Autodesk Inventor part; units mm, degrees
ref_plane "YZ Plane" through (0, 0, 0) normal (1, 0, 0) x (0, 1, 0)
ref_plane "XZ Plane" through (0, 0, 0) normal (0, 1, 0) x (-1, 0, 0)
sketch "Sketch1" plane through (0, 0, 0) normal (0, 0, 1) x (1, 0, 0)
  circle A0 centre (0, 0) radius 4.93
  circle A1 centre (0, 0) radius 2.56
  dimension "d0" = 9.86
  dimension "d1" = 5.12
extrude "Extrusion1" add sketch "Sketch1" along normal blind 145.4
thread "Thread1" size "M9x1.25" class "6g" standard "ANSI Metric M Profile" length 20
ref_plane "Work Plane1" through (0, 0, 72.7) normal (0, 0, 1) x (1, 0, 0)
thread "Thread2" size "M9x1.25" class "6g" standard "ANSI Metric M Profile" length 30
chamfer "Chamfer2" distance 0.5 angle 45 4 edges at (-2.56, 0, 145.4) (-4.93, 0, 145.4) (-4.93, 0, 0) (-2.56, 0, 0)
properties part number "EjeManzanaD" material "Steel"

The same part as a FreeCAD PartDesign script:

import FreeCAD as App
import Part
import Sketcher


def edges_at(feature, points):
    """Names of the edges that pass closest to the given points."""
    edges = feature.Shape.Edges
    near = lambda p: min(range(len(edges)), key=lambda i: edges[i].distToShape(Part.Vertex(*p))[0])
    return sorted({f"Edge{near(p) + 1}" for p in points})

doc = App.newDocument("Part")
body = doc.addObject("PartDesign::Body", "Body")

sketch1 = body.newObject("Sketcher::SketchObject", "Sketch")
sketch1.AttachmentSupport = (doc.getObject("XY_Plane"), [""])
sketch1.MapMode = "FlatFace"
sketch1.addGeometry(Part.Circle(App.Vector(0, 0, 0), App.Vector(0, 0, 1), 4.93), False)
sketch1.addGeometry(Part.Circle(App.Vector(0, 0, 0), App.Vector(0, 0, 1), 2.56), False)
sketch1.addConstraint(Sketcher.Constraint("Coincident", 0, 3, -1, 1))
sketch1.addConstraint(Sketcher.Constraint("Coincident", 1, 3, -1, 1))
sketch1.addConstraint(Sketcher.Constraint("Diameter", 0, 9.86))
sketch1.addConstraint(Sketcher.Constraint("Diameter", 1, 5.12))
pad1 = body.newObject("PartDesign::Pad", "Pad")
pad1.Profile = sketch1
pad1.Length = 145.4
doc.recompute()

chamfer = body.newObject("PartDesign::Chamfer", "Chamfer")
chamfer.Base = (pad1, edges_at(pad1, [
    (-2.56, 0, 145.4),
    (-4.93, 0, 145.4),
    (-4.93, 0, 0),
    (-2.56, 0, 0),
]))
chamfer.Size = 0.5

doc.recompute()
